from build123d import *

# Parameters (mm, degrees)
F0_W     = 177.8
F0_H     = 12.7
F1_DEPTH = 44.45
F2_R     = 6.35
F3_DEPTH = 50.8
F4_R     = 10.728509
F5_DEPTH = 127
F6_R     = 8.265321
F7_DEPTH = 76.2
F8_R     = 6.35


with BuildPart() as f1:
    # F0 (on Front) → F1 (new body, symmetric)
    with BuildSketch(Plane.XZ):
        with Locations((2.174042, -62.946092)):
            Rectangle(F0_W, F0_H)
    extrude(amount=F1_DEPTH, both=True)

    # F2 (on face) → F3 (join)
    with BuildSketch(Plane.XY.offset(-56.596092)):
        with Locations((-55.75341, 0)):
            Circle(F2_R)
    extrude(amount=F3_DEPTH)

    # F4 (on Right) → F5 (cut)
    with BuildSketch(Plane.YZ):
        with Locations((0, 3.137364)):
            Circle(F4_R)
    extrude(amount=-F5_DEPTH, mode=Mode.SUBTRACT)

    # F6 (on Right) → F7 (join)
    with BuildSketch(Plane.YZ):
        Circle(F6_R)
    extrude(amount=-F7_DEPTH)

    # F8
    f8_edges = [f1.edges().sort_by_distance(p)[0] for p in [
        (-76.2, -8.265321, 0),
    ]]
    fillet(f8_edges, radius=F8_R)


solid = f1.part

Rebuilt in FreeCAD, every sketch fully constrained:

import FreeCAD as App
import Part
import Sketcher
Q = App.Units.Quantity


def edges_at(feature, points):
    """Names of the edges that pass closest to the given points."""
    edges = feature.Shape.Edges
    near = lambda p: min(range(len(edges)), key=lambda i: edges[i].distToShape(Part.Vertex(*p))[0])
    return sorted({f"Edge{near(p) + 1}" for p in points})


def add_polygon(sketch, points):
    """Adds a closed chain of lines whose ends are joined by coincident constraints."""
    first, n = sketch.GeometryCount, len(points)
    for a, b in zip(points, points[1:] + points[:1]):
        sketch.addGeometry(Part.LineSegment(App.Vector(*a, 0), App.Vector(*b, 0)), False)
    for i in range(n):
        sketch.addConstraint(Sketcher.Constraint("Coincident", first + i, 2, first + (i + 1) % n, 1))

doc = App.newDocument("Part")
body = doc.addObject("PartDesign::Body", "Body")

# Sketch on XZ plane
sketch1 = body.newObject("Sketcher::SketchObject", "Sketch")
sketch1.AttachmentSupport = (doc.getObject("XZ_Plane"), [""])
sketch1.MapMode = "FlatFace"
add_polygon(sketch1, [(-86.725958, -56.596092), (-86.725958, -69.296092), (91.074042, -69.296092), (91.074042, -56.596092)])  # lines 0-3
sketch1.addConstraint([
    Sketcher.Constraint("Vertical", 0),
    Sketcher.Constraint("Horizontal", 1),
    Sketcher.Constraint("Vertical", 2),
    Sketcher.Constraint("Horizontal", 3),
    Sketcher.Constraint("DistanceX", 1, 1, 1, 2, Q("7 in")),
    Sketcher.Constraint("DistanceY", 0, 2, 0, 1, Q("0.5 in")),
    Sketcher.Constraint("DistanceX", 0, 2, -1, 1, Q("86.725958 mm")),
    Sketcher.Constraint("DistanceY", 0, 2, -1, 1, Q("69.296092 mm")),
])
pad1 = body.newObject("PartDesign::Pad", "Pad")
pad1.Profile = sketch1
pad1.Length = Q("3.5 in")
pad1.Midplane = True

# Sketch on XY plane
sketch2 = body.newObject("Sketcher::SketchObject", "Sketch001")
sketch2.AttachmentSupport = (doc.getObject("XY_Plane"), [""])
sketch2.MapMode = "FlatFace"
sketch2.AttachmentOffset = App.Placement(App.Vector(0, 0, -56.596092), App.Rotation())
sketch2.addGeometry(Part.Circle(App.Vector(-55.75341, 0, 0), App.Vector(0, 0, 1), 6.35), False)
sketch2.addConstraint([
    Sketcher.Constraint("PointOnObject", 0, 3, -1),
    Sketcher.Constraint("Diameter", 0, Q("0.5 in")),
    Sketcher.Constraint("DistanceX", 0, 3, -1, 1, Q("55.75341 mm")),
])
pad2 = body.newObject("PartDesign::Pad", "Pad001")
pad2.Profile = sketch2
pad2.Length = Q("2 in")

# Sketch on YZ plane
sketch3 = body.newObject("Sketcher::SketchObject", "Sketch002")
sketch3.AttachmentSupport = (doc.getObject("YZ_Plane"), [""])
sketch3.MapMode = "FlatFace"
sketch3.addGeometry(Part.Circle(App.Vector(0, 3.137364, 0), App.Vector(0, 0, 1), 10.728509), False)
sketch3.addConstraint([
    Sketcher.Constraint("PointOnObject", 0, 3, -2),
    Sketcher.Constraint("Diameter", 0, Q("21.457018 mm")),
    Sketcher.Constraint("DistanceY", -1, 1, 0, 3, Q("3.137364 mm")),
])
pocket1 = body.newObject("PartDesign::Pocket", "Pocket")
pocket1.Profile = sketch3
pocket1.Length = Q("5 in")

# Sketch on YZ plane
sketch4 = body.newObject("Sketcher::SketchObject", "Sketch003")
sketch4.AttachmentSupport = (doc.getObject("YZ_Plane"), [""])
sketch4.MapMode = "FlatFace"
sketch4.addGeometry(Part.Circle(App.Vector(0, 0, 0), App.Vector(0, 0, 1), 8.265321), False)
sketch4.addConstraint([
    Sketcher.Constraint("Coincident", 0, 3, -1, 1),
    Sketcher.Constraint("Diameter", 0, Q("16.530642 mm")),
])
pad3 = body.newObject("PartDesign::Pad", "Pad002")
pad3.Profile = sketch4
pad3.Length = Q("3 in")
pad3.Reversed = True
doc.recompute()

fillet = body.newObject("PartDesign::Fillet", "Fillet")
fillet.Base = (pad3, edges_at(pad3, [(-76.2, -8.265, 0)]))
fillet.Radius = Q("0.25 in")

doc.recompute()
